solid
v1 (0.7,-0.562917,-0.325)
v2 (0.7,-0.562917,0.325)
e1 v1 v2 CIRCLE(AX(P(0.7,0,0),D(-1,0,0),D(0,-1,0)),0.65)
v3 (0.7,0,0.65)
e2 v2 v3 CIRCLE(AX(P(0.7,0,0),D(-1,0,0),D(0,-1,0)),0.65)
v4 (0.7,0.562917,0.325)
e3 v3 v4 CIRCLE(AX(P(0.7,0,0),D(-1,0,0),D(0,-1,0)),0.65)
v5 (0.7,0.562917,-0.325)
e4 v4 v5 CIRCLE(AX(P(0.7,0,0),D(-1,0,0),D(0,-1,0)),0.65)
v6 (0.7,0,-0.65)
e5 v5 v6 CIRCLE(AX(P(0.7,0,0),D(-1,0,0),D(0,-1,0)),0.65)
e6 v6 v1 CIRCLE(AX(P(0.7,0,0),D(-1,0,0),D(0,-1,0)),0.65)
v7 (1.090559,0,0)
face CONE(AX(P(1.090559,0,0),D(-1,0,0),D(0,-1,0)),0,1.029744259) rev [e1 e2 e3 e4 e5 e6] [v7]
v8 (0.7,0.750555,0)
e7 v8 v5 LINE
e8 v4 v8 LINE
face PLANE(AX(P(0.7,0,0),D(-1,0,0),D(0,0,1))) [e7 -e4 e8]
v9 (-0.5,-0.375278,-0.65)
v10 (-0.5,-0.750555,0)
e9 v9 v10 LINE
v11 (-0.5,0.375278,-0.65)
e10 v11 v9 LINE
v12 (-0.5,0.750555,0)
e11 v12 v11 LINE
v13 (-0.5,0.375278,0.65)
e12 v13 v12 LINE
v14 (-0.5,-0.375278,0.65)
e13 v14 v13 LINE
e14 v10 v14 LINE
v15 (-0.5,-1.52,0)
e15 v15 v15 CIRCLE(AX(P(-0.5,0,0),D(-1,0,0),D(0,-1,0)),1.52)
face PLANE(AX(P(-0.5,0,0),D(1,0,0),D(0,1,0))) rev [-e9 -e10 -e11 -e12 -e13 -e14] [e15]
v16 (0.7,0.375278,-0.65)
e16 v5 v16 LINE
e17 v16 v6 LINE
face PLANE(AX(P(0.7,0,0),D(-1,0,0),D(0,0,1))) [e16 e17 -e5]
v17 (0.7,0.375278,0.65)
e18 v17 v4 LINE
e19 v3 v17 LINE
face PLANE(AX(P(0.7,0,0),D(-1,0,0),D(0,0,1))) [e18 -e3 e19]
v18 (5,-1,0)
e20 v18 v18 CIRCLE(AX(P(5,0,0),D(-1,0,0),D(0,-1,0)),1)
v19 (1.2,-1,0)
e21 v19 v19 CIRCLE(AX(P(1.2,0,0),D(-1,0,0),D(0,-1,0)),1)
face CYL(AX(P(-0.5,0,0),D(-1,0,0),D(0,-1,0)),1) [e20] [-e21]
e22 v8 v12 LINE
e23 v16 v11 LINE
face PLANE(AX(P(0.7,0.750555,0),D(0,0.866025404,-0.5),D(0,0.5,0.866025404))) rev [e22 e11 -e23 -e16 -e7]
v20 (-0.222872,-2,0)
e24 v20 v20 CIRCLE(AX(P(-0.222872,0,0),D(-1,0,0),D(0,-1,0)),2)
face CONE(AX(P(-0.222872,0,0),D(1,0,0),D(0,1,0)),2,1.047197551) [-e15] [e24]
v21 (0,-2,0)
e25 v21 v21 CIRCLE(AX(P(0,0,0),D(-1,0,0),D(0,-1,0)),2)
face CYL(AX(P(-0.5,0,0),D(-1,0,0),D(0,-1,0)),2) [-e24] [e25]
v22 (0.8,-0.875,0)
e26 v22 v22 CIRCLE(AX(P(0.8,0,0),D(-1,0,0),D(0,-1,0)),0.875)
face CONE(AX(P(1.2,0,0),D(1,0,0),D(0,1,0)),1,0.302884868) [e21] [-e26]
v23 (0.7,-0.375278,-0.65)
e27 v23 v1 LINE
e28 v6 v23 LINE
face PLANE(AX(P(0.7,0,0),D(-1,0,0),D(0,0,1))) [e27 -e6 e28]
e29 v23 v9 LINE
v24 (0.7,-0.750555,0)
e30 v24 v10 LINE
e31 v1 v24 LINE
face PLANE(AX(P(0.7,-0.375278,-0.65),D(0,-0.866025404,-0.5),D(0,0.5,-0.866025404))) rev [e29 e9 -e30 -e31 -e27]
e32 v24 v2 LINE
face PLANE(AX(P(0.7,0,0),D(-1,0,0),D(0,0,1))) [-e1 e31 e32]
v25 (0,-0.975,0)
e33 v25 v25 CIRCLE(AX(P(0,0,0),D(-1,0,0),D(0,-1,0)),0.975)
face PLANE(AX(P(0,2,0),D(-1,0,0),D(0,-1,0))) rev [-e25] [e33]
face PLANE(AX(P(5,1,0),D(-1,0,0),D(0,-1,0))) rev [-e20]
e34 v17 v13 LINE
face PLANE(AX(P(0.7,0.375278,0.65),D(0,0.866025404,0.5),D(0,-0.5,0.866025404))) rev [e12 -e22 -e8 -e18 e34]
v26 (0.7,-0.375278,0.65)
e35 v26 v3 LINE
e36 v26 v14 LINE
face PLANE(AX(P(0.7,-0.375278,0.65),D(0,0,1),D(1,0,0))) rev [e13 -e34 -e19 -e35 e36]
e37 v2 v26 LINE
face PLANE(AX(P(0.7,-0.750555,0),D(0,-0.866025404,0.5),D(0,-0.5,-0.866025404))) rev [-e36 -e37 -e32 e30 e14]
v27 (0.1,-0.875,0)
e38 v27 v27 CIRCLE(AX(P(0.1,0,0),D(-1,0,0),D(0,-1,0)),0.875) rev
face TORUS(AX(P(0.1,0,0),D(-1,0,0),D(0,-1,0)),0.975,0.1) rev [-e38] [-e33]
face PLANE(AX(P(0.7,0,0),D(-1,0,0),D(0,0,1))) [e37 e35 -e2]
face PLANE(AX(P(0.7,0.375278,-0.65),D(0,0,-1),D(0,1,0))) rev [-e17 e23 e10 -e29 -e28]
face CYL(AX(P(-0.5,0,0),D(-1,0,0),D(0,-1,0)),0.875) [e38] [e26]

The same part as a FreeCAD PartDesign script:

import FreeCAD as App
import Part
import Sketcher

V = App.Vector
Q = App.Units.Quantity


def edges_at(feature, points):
    """Names of the edges that pass closest to the given points."""
    edges = feature.Shape.Edges
    near = lambda p: min(range(len(edges)), key=lambda i: edges[i].distToShape(Part.Vertex(*p))[0])
    return sorted({f"Edge{near(p) + 1}" for p in points})


def add_polygon(sketch, points):
    """Adds a closed chain of lines whose ends are joined by coincident constraints."""
    first, n = sketch.GeometryCount, len(points)
    for a, b in zip(points, points[1:] + points[:1]):
        sketch.addGeometry(Part.LineSegment(App.Vector(*a, 0), App.Vector(*b, 0)), False)
    for i in range(n):
        sketch.addConstraint(Sketcher.Constraint("Coincident", first + i, 2, first + (i + 1) % n, 1))

doc = App.newDocument("Part")
params = doc.addObject("Spreadsheet::Sheet", "Params")
for row, (alias, value) in enumerate([
    ("sketch1_height", "1 mm"),
    ("sketch1_width", "5.5 mm"),
    ("sketch1_width2", "3.8 mm"),
    ("sketch1_width3", "0.8 mm"),
    ("sketch1_height2", "1.52 mm"),
    ("revolution_angle", "360 deg"),
    ("fillet_radius", "0.1 mm"),
    ("pocket1_length", "1.2 mm"),
    ("sketch3_height", "0.65 mm"),
    ("groove_angle", "360 deg"),
], start=1):
    params.set(f"A{row}", alias)
    params.set(f"B{row}", "=" + value)
    params.setAlias(f"B{row}", alias)

body = doc.addObject("PartDesign::Body", "Body")

# Sketch on XY plane
sketch1 = body.newObject("Sketcher::SketchObject", "Sketch")
sketch1.AttachmentSupport = (doc.getObject("XY_Plane"), [""])
sketch1.MapMode = "FlatFace"
add_polygon(sketch1, [(-0.5, 1.52), (-0.5, 0), (5, 0), (5, 1), (1.2, 1), (0.8, 0.875), (0, 0.875), (0, 2), (-0.222872, 2)])  # lines 0-8
sketch1.addConstraint([
    Sketcher.Constraint("Vertical", 0),
    Sketcher.Constraint("Horizontal", 1),
    Sketcher.Constraint("Vertical", 2),
    Sketcher.Constraint("Horizontal", 3),
    Sketcher.Constraint("Horizontal", 5),
    Sketcher.Constraint("Vertical", 6),
    Sketcher.Constraint("Horizontal", 7),
    Sketcher.Constraint("PointOnObject", 0, 2, -1),
    Sketcher.Constraint("PointOnObject", 5, 2, -2),
    Sketcher.Constraint("DistanceY", 2, 1, 2, 2, Q("1 mm")),
    Sketcher.Constraint("Angle", 8, Q("-120 deg")),
    Sketcher.Constraint("DistanceX", 1, 1, 1, 2, Q("5.5 mm")),
    Sketcher.Constraint("DistanceX", 3, 2, 3, 1, Q("3.8 mm")),
    Sketcher.Constraint("DistanceX", 5, 2, 5, 1, Q("0.8 mm")),
    Sketcher.Constraint("DistanceX", -1, 1, 1, 2, Q("5 mm")),
    Sketcher.Constraint("DistanceY", -1, 1, 6, 2, Q("2 mm")),
    Sketcher.Constraint("DistanceY", 0, 2, 0, 1, Q("1.52 mm")),
    Sketcher.Constraint("DistanceY", 6, 1, 6, 2, Q("1.125 mm")),
])
sketch1.setExpression("Constraints[18]", "Params.sketch1_height")
sketch1.setExpression("Constraints[20]", "Params.sketch1_width")
sketch1.setExpression("Constraints[21]", "Params.sketch1_width2")
sketch1.setExpression("Constraints[22]", "Params.sketch1_width3")
sketch1.setExpression("Constraints[25]", "Params.sketch1_height2")
revolution = body.newObject("PartDesign::Revolution", "Revolution")
revolution.Profile = sketch1
revolution.ReferenceAxis = (sketch1, ["H_Axis"])
revolution.setExpression("Angle", "Params.revolution_angle")
doc.recompute()

fillet = body.newObject("PartDesign::Fillet", "Fillet")
fillet.Base = (revolution, edges_at(revolution, [(0, 0.875, 0)]))
fillet.setExpression("Radius", "Params.fillet_radius")

# Sketch on YZ plane
sketch2 = body.newObject("Sketcher::SketchObject", "Sketch001")
sketch2.AttachmentSupport = (doc.getObject("YZ_Plane"), [""])
sketch2.MapMode = "FlatFace"
sketch2.AttachmentOffset = App.Placement(V(0, 0, -0.5), App.Rotation())
add_polygon(sketch2, [(0.750555, 0), (0.375278, -0.65), (-0.375278, -0.65), (-0.750555, 0), (-0.375278, 0.65), (0.375278, 0.65)])  # lines 0-5
sketch2.addConstraint([
    Sketcher.Constraint("Horizontal", 1),
    Sketcher.Constraint("Horizontal", 4),
    Sketcher.Constraint("Symmetric", 0, 2, 3, 2, -1, 1),
    Sketcher.Constraint("Symmetric", 2, 2, 5, 2, -1, 1),
    Sketcher.Constraint("PointOnObject", 2, 2, -1),
    Sketcher.Constraint("Parallel", 2, 5),
    Sketcher.Constraint("Vertical", 1, 2, 3, 2),
    Sketcher.Constraint("Angle", 0, Q("-120 deg")),
    Sketcher.Constraint("DistanceY", 1, 2, 3, 2, Q("1.3 mm")),
    Sketcher.Constraint("DistanceX", 1, 2, 1, 1, Q("0.750555 mm")),
])
pocket1 = body.newObject("PartDesign::Pocket", "Pocket")
pocket1.Profile = sketch2
pocket1.setExpression("Length", "Params.pocket1_length")
pocket1.Reversed = True

# Sketch on XY plane
sketch3 = body.newObject("Sketcher::SketchObject", "Sketch002")
sketch3.AttachmentSupport = (doc.getObject("XY_Plane"), [""])
sketch3.MapMode = "FlatFace"
add_polygon(sketch3, [(0.7, 0.65), (0.7, 0), (1.090559, 0)])  # lines 0-2
sketch3.addConstraint([
    Sketcher.Constraint("Vertical", 0),
    Sketcher.Constraint("Horizontal", 1),
    Sketcher.Constraint("PointOnObject", 0, 2, -1),
    Sketcher.Constraint("Angle", 2, Q("121 deg")),
    Sketcher.Constraint("DistanceY", 0, 2, 0, 1, Q("0.65 mm")),
    Sketcher.Constraint("DistanceX", -1, 1, 0, 2, Q("0.7 mm")),
])
sketch3.setExpression("Constraints[7]", "Params.sketch3_height")
groove = body.newObject("PartDesign::Groove", "Groove")
groove.Profile = sketch3
groove.ReferenceAxis = (sketch3, ["H_Axis"])
groove.setExpression("Angle", "Params.groove_angle")

doc.recompute()
